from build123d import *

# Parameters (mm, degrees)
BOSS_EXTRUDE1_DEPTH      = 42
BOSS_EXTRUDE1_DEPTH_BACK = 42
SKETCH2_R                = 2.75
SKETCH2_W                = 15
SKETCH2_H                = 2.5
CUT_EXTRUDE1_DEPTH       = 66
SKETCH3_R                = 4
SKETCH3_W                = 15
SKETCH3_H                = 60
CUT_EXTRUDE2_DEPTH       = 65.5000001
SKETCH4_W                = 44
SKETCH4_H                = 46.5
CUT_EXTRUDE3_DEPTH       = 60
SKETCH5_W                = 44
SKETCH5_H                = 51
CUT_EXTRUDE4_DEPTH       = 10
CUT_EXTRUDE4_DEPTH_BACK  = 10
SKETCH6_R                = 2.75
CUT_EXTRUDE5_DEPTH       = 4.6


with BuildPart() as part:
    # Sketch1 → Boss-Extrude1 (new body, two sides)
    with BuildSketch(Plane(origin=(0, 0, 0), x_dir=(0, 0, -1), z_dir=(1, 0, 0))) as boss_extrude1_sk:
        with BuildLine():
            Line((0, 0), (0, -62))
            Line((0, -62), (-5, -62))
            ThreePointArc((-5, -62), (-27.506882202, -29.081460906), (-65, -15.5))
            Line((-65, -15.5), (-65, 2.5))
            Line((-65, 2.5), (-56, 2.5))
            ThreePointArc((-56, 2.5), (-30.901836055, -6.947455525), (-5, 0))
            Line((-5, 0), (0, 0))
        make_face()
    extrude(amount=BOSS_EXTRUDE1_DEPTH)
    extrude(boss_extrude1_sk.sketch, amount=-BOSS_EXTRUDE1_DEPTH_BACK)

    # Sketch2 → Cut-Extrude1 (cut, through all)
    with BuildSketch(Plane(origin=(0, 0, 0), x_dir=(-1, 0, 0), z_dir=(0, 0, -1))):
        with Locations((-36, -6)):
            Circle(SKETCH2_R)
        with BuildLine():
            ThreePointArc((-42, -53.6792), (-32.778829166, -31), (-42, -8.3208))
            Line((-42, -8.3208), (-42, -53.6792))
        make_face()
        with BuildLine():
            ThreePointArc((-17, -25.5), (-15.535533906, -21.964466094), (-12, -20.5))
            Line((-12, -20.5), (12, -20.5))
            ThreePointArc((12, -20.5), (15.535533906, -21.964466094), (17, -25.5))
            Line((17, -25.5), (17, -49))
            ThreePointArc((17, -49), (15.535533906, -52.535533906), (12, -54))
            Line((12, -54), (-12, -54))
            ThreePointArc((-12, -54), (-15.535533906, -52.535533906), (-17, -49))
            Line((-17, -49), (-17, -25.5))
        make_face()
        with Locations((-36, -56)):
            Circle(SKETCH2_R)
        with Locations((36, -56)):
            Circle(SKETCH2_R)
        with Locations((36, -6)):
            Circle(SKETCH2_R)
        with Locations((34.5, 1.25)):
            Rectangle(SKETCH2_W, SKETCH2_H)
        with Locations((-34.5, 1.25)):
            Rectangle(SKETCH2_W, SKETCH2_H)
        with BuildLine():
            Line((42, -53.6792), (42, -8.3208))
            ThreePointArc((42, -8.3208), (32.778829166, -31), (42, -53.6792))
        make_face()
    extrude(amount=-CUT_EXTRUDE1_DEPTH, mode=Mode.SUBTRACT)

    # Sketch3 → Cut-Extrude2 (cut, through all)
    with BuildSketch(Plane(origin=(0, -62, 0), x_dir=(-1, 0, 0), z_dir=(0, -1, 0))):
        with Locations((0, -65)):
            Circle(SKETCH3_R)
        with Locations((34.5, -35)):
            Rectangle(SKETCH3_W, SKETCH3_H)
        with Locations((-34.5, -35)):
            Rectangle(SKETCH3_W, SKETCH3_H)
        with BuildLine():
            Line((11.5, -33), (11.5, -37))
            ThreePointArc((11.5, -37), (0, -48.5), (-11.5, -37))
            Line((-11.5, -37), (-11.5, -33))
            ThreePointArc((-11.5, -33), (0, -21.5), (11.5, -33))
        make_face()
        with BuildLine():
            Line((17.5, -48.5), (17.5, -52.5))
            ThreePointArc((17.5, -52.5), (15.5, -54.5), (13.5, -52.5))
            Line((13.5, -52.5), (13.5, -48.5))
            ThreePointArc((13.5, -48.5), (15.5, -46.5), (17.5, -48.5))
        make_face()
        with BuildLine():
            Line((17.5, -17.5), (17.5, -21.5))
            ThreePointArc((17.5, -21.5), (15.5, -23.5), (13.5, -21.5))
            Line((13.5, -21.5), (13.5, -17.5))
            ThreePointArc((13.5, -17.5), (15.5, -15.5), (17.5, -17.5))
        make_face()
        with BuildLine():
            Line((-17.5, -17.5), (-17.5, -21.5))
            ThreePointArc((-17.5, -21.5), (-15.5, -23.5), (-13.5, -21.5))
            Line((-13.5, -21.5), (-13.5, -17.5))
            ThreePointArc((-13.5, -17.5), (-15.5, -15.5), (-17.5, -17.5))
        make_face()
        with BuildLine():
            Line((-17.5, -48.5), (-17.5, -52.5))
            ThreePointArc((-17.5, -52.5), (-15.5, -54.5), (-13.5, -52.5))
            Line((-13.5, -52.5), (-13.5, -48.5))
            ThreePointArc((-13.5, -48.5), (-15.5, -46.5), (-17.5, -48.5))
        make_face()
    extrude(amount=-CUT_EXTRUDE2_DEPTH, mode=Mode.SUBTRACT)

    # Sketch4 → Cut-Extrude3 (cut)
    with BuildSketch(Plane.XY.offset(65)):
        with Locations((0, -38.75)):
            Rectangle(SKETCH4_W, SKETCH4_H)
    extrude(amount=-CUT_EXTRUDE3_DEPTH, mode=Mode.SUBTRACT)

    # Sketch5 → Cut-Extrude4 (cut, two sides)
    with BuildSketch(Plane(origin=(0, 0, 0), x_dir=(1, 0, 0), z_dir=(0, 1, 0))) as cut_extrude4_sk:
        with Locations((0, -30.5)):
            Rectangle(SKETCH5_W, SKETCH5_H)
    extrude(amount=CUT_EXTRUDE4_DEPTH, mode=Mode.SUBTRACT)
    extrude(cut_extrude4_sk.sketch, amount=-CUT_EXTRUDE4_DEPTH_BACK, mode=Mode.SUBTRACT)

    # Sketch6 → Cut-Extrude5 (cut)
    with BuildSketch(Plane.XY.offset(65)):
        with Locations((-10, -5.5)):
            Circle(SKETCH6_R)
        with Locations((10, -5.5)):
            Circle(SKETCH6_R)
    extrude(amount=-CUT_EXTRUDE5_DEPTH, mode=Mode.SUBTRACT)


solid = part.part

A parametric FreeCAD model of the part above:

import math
import FreeCAD as App
import Part
import Sketcher

V = App.Vector
Q = App.Units.Quantity


def add_polygon(sketch, points):
    """Adds a closed chain of lines whose ends are joined by coincident constraints."""
    first, n = sketch.GeometryCount, len(points)
    for a, b in zip(points, points[1:] + points[:1]):
        sketch.addGeometry(Part.LineSegment(App.Vector(*a, 0), App.Vector(*b, 0)), False)
    for i in range(n):
        sketch.addConstraint(Sketcher.Constraint("Coincident", first + i, 2, first + (i + 1) % n, 1))

doc = App.newDocument("Part")
params = doc.addObject("Spreadsheet::Sheet", "Params")
for row, (alias, value) in enumerate([
    ("sketch1_radius", "65 mm"),
    ("sketch1_width", "62 mm"),
    ("sketch1_width2", "18 mm"),
    ("sketch1_height", "5 mm"),
    ("sketch1_height2", "9 mm"),
    ("pad1_length", "42 mm"),
    ("pad1_length2", "42 mm"),
    ("sketch2_radius", "5 mm"),
    ("sketch2_diameter", "5.5 mm"),
    ("sketch2_radius2", "32.5 mm"),
    ("sketch2_width", "24 mm"),
    ("sketch2_width2", "15 mm"),
    ("sketch3_diameter", "8 mm"),
    ("sketch3_radius", "2 mm"),
    ("sketch3_radius2", "11.5 mm"),
    ("sketch3_width", "15 mm"),
    ("sketch3_height", "60 mm"),
    ("sketch4_width", "44 mm"),
    ("sketch4_height", "46.5 mm"),
    ("pocket3_length", "60 mm"),
    ("sketch5_width", "44 mm"),
    ("sketch5_height", "51 mm"),
    ("pocket4_length", "10 mm"),
    ("pocket4_length2", "10 mm"),
    ("sketch6_diameter", "5.5 mm"),
    ("pocket5_length", "4.6 mm"),
], start=1):
    params.set(f"A{row}", alias)
    params.set(f"B{row}", "=" + value)
    params.setAlias(f"B{row}", alias)

body = doc.addObject("PartDesign::Body", "Body")

# Sketch on YZ plane
sketch1 = body.newObject("Sketcher::SketchObject", "Sketch")
sketch1.AttachmentSupport = (doc.getObject("YZ_Plane"), [""])
sketch1.MapMode = "FlatFace"
sketch1.addGeometry([
    Part.LineSegment(V(-62, 0, 0), V(0, 0, 0)),  # 0
    Part.LineSegment(V(0, 0, 0), V(0, 5, 0)),  # 1
    Part.ArcOfCircle(Part.Circle(V(37, 29, 0), V(0, 0, 1), 44), math.radians(142), math.radians(213)),  # 2
    Part.LineSegment(V(2, 56, 0), V(2, 65, 0)),  # 3
    Part.LineSegment(V(2, 65, 0), V(-16, 65, 0)),  # 4
    Part.ArcOfCircle(Part.Circle(V(-80, 67, 0), V(0, 0, 1), 65), math.radians(-74), math.radians(-2)),  # 5
    Part.LineSegment(V(-62, 5, 0), V(-62, 0, 0)),  # 6
], False)
sketch1.addConstraint([
    Sketcher.Constraint("Coincident", 0, 2, 1, 1),
    Sketcher.Constraint("Coincident", 1, 2, 2, 2),
    Sketcher.Constraint("Coincident", 2, 1, 3, 1),
    Sketcher.Constraint("Coincident", 3, 2, 4, 1),
    Sketcher.Constraint("Coincident", 4, 2, 5, 2),
    Sketcher.Constraint("Coincident", 5, 1, 6, 1),
    Sketcher.Constraint("Coincident", 6, 2, 0, 1),
    Sketcher.Constraint("Horizontal", 0),
    Sketcher.Constraint("Vertical", 1),
    Sketcher.Constraint("Vertical", 3),
    Sketcher.Constraint("Horizontal", 4),
    Sketcher.Constraint("Vertical", 6),
    Sketcher.Constraint("Coincident", 0, 2, -1, 1),
    Sketcher.Constraint("Horizontal", 1, 2, 5, 1),
    Sketcher.Constraint("Radius", 5, Q("65 mm")),
    Sketcher.Constraint("DistanceX", 0, 1, 0, 2, Q("62 mm")),
    Sketcher.Constraint("DistanceX", 4, 2, 4, 1, Q("18 mm")),
    Sketcher.Constraint("DistanceY", 1, 1, 1, 2, Q("5 mm")),
    Sketcher.Constraint("DistanceY", 3, 1, 3, 2, Q("9 mm")),
    Sketcher.Constraint("DistanceY", -1, 1, 2, 1, Q("56 mm")),
    Sketcher.Constraint("DistanceX", -1, 1, 2, 1, Q("2.5 mm")),
    Sketcher.Constraint("Radius", 2, Q("43.81297 mm")),
])
sketch1.setExpression("Constraints[14]", "Params.sketch1_radius")
sketch1.setExpression("Constraints[15]", "Params.sketch1_width")
sketch1.setExpression("Constraints[16]", "Params.sketch1_width2")
sketch1.setExpression("Constraints[17]", "Params.sketch1_height")
sketch1.setExpression("Constraints[18]", "Params.sketch1_height2")
pad1 = body.newObject("PartDesign::Pad", "Pad")
pad1.Profile = sketch1
pad1.Type = "TwoLengths"
pad1.setExpression("Length", "Params.pad1_length")
pad1.setExpression("Length2", "Params.pad1_length2")

# Sketch on XY plane
sketch2 = body.newObject("Sketcher::SketchObject", "Sketch001")
sketch2.AttachmentSupport = (doc.getObject("XY_Plane"), [""])
sketch2.MapMode = "FlatFace"
sketch2.addGeometry(Part.Circle(V(36, -6, 0), V(0, 0, 1), 2.8), False)  # 0
sketch2.addGeometry(Part.ArcOfCircle(Part.Circle(V(65.3, -31, 0), V(0, 0, 1), 32.5), math.radians(136), math.radians(224)), False)  # 1
sketch2.addGeometry(Part.LineSegment(V(42, -8.3, 0), V(42, -53.7, 0)), False)  # 2
sketch2.addGeometry(Part.ArcOfCircle(Part.Circle(V(12, -25.5, 0), V(0, 0, 1), 5), math.radians(0), math.radians(90)), False)  # 3
sketch2.addGeometry(Part.LineSegment(V(17, -25.5, 0), V(17, -49, 0)), False)  # 4
sketch2.addGeometry(Part.ArcOfCircle(Part.Circle(V(12, -49, 0), V(0, 0, 1), 5), math.radians(-90), math.radians(0)), False)  # 5
sketch2.addGeometry(Part.LineSegment(V(12, -54, 0), V(-12, -54, 0)), False)  # 6
sketch2.addGeometry(Part.ArcOfCircle(Part.Circle(V(-12, -49, 0), V(0, 0, 1), 5), math.radians(180), math.radians(270)), False)  # 7
sketch2.addGeometry(Part.LineSegment(V(-17, -49, 0), V(-17, -25.5, 0)), False)  # 8
sketch2.addGeometry(Part.ArcOfCircle(Part.Circle(V(-12, -25.5, 0), V(0, 0, 1), 5), math.radians(90), math.radians(180)), False)  # 9
sketch2.addGeometry(Part.LineSegment(V(-12, -20.5, 0), V(12, -20.5, 0)), False)  # 10
sketch2.addGeometry(Part.Circle(V(36, -56, 0), V(0, 0, 1), 2.8), False)  # 11
sketch2.addGeometry(Part.Circle(V(-36, -56, 0), V(0, 0, 1), 2.8), False)  # 12
sketch2.addGeometry(Part.Circle(V(-36, -6, 0), V(0, 0, 1), 2.8), False)  # 13
add_polygon(sketch2, [(-27, 2.5), (-27, 0), (-42, 0), (-42, 2.5)])  # lines 14-17
add_polygon(sketch2, [(42, 2.5), (42, 0), (27, 0), (27, 2.5)])  # lines 18-21
sketch2.addGeometry(Part.LineSegment(V(-42, -53.7, 0), V(-42, -8.3, 0)), False)  # 22
sketch2.addGeometry(Part.ArcOfCircle(Part.Circle(V(-65.3, -31, 0), V(0, 0, 1), 32.5), math.radians(-44), math.radians(44)), False)  # 23
sketch2.addConstraint([
    Sketcher.Constraint("Coincident", 1, 1, 2, 1),
    Sketcher.Constraint("Coincident", 2, 2, 1, 2),
    Sketcher.Constraint("Tangent", 3, 1, 4, 1),
    Sketcher.Constraint("Tangent", 4, 2, 5, 2),
    Sketcher.Constraint("Tangent", 5, 1, 6, 1),
    Sketcher.Constraint("Tangent", 6, 2, 7, 2),
    Sketcher.Constraint("Tangent", 7, 1, 8, 1),
    Sketcher.Constraint("Tangent", 8, 2, 9, 2),
    Sketcher.Constraint("Tangent", 9, 1, 10, 1),
    Sketcher.Constraint("Tangent", 10, 2, 3, 2),
    Sketcher.Constraint("Coincident", 22, 1, 23, 1),
    Sketcher.Constraint("Coincident", 23, 2, 22, 2),
    Sketcher.Constraint("Vertical", 2),
    Sketcher.Constraint("Vertical", 4),
    Sketcher.Constraint("Horizontal", 6),
    Sketcher.Constraint("Vertical", 8),
    Sketcher.Constraint("Horizontal", 10),
    Sketcher.Constraint("Vertical", 14),
    Sketcher.Constraint("Horizontal", 15),
    Sketcher.Constraint("Vertical", 16),
    Sketcher.Constraint("Horizontal", 17),
    Sketcher.Constraint("Vertical", 18),
    Sketcher.Constraint("Horizontal", 19),
    Sketcher.Constraint("Vertical", 20),
    Sketcher.Constraint("Horizontal", 21),
    Sketcher.Constraint("Vertical", 22),
    Sketcher.Constraint("Equal", 3, 5),
    Sketcher.Constraint("Equal", 5, 7),
    Sketcher.Constraint("Equal", 7, 9),
    Sketcher.Constraint("Equal", 0, 11),
    Sketcher.Constraint("Equal", 11, 12),
    Sketcher.Constraint("Equal", 12, 13),
    Sketcher.Constraint("Equal", 1, 23),
    Sketcher.Constraint("Symmetric", 15, 2, 18, 2, -1, 1),
    Sketcher.Constraint("Symmetric", 11, 3, 12, 3, -2),
    Sketcher.Constraint("Symmetric", 0, 3, 13, 3, -2),
    Sketcher.Constraint("Symmetric", 1, 3, 23, 3, -2),
    Sketcher.Constraint("Symmetric", 14, 2, 19, 2, -2),
    Sketcher.Constraint("Horizontal", 17, 2, 20, 2),
    Sketcher.Constraint("Horizontal", 2, 2, 22, 1),
    Sketcher.Constraint("Vertical", 0, 3, 11, 3),
    Sketcher.Constraint("Vertical", 2, 2, 18, 2),
    Sketcher.Constraint("Radius", 3, Q("5 mm")),
    Sketcher.Constraint("Diameter", 0, Q("5.5 mm")),
    Sketcher.Constraint("Radius", 1, Q("32.5 mm")),
    Sketcher.Constraint("DistanceX", 6, 2, 6, 1, Q("24 mm")),
    Sketcher.Constraint("DistanceX", 15, 2, 15, 1, Q("15 mm")),
    Sketcher.Constraint("DistanceY", 4, 2, 4, 1, Q("23.5 mm")),
    Sketcher.Constraint("DistanceY", 14, 2, 14, 1, Q("2.5 mm")),
    Sketcher.Constraint("DistanceX", -1, 1, 0, 3, Q("36 mm")),
    Sketcher.Constraint("DistanceY", 0, 3, -1, 1, Q("6 mm")),
    Sketcher.Constraint("DistanceY", 1, 3, -1, 1, Q("31 mm")),
    Sketcher.Constraint("DistanceX", -1, 1, 3, 3, Q("12 mm")),
    Sketcher.Constraint("DistanceY", 5, 3, -1, 1, Q("49 mm")),
    Sketcher.Constraint("DistanceY", 11, 3, -1, 1, Q("56 mm")),
    Sketcher.Constraint("DistanceX", -1, 1, 1, 1, Q("42 mm")),
    Sketcher.Constraint("DistanceY", 2, 2, 2, 1, Q("45.3584 mm")),
])
sketch2.setExpression("Constraints[50]", "Params.sketch2_radius")
sketch2.setExpression("Constraints[51]", "Params.sketch2_diameter")
sketch2.setExpression("Constraints[52]", "Params.sketch2_radius2")
sketch2.setExpression("Constraints[53]", "Params.sketch2_width")
sketch2.setExpression("Constraints[54]", "Params.sketch2_width2")
pocket1 = body.newObject("PartDesign::Pocket", "Pocket")
pocket1.Profile = sketch2
pocket1.Type = "ThroughAll"
pocket1.Reversed = True

# Sketch on XZ plane
sketch3 = body.newObject("Sketcher::SketchObject", "Sketch002")
sketch3.AttachmentSupport = (doc.getObject("XZ_Plane"), [""])
sketch3.MapMode = "FlatFace"
sketch3.AttachmentOffset = App.Placement(V(0, 0, 62), App.Rotation())
sketch3.addGeometry(Part.Circle(V(0, 65, 0), V(0, 0, 1), 4), False)  # 0
add_polygon(sketch3, [(-27, 5), (-27, 65), (-42, 65), (-42, 5)])  # lines 1-4
add_polygon(sketch3, [(42, 5), (42, 65), (27, 65), (27, 5)])  # lines 5-8
sketch3.addGeometry(Part.LineSegment(V(-11.5, 37, 0), V(-11.5, 33, 0)), False)  # 9
sketch3.addGeometry(Part.ArcOfCircle(Part.Circle(V(0, 33, 0), V(0, 0, 1), 11.5), math.radians(180), math.radians(360)), False)  # 10
sketch3.addGeometry(Part.LineSegment(V(11.5, 33, 0), V(11.5, 37, 0)), False)  # 11
sketch3.addGeometry(Part.ArcOfCircle(Part.Circle(V(0, 37, 0), V(0, 0, 1), 11.5), math.radians(0), math.radians(180)), False)  # 12
sketch3.addGeometry(Part.LineSegment(V(-17.5, 52.5, 0), V(-17.5, 48.5, 0)), False)  # 13
sketch3.addGeometry(Part.ArcOfCircle(Part.Circle(V(-15.5, 48.5, 0), V(0, 0, 1), 2), math.radians(180), math.radians(360)), False)  # 14
sketch3.addGeometry(Part.LineSegment(V(-13.5, 48.5, 0), V(-13.5, 52.5, 0)), False)  # 15
sketch3.addGeometry(Part.ArcOfCircle(Part.Circle(V(-15.5, 52.5, 0), V(0, 0, 1), 2), math.radians(0), math.radians(180)), False)  # 16
sketch3.addGeometry(Part.LineSegment(V(-17.5, 21.5, 0), V(-17.5, 17.5, 0)), False)  # 17
sketch3.addGeometry(Part.ArcOfCircle(Part.Circle(V(-15.5, 17.5, 0), V(0, 0, 1), 2), math.radians(180), math.radians(360)), False)  # 18
sketch3.addGeometry(Part.LineSegment(V(-13.5, 17.5, 0), V(-13.5, 21.5, 0)), False)  # 19
sketch3.addGeometry(Part.ArcOfCircle(Part.Circle(V(-15.5, 21.5, 0), V(0, 0, 1), 2), math.radians(0), math.radians(180)), False)  # 20
sketch3.addGeometry(Part.LineSegment(V(17.5, 17.5, 0), V(17.5, 21.5, 0)), False)  # 21
sketch3.addGeometry(Part.ArcOfCircle(Part.Circle(V(15.5, 21.5, 0), V(0, 0, 1), 2), math.radians(0), math.radians(180)), False)  # 22
sketch3.addGeometry(Part.LineSegment(V(13.5, 21.5, 0), V(13.5, 17.5, 0)), False)  # 23
sketch3.addGeometry(Part.ArcOfCircle(Part.Circle(V(15.5, 17.5, 0), V(0, 0, 1), 2), math.radians(180), math.radians(360)), False)  # 24
sketch3.addGeometry(Part.LineSegment(V(17.5, 48.5, 0), V(17.5, 52.5, 0)), False)  # 25
sketch3.addGeometry(Part.ArcOfCircle(Part.Circle(V(15.5, 52.5, 0), V(0, 0, 1), 2), math.radians(0), math.radians(180)), False)  # 26
sketch3.addGeometry(Part.LineSegment(V(13.5, 52.5, 0), V(13.5, 48.5, 0)), False)  # 27
sketch3.addGeometry(Part.ArcOfCircle(Part.Circle(V(15.5, 48.5, 0), V(0, 0, 1), 2), math.radians(180), math.radians(360)), False)  # 28
sketch3.addConstraint([
    Sketcher.Constraint("Tangent", 9, 2, 10, 1),
    Sketcher.Constraint("Tangent", 10, 2, 11, 1),
    Sketcher.Constraint("Tangent", 11, 2, 12, 1),
    Sketcher.Constraint("Tangent", 12, 2, 9, 1),
    Sketcher.Constraint("Tangent", 13, 2, 14, 1),
    Sketcher.Constraint("Tangent", 14, 2, 15, 1),
    Sketcher.Constraint("Tangent", 15, 2, 16, 1),
    Sketcher.Constraint("Tangent", 16, 2, 13, 1),
    Sketcher.Constraint("Tangent", 17, 2, 18, 1),
    Sketcher.Constraint("Tangent", 18, 2, 19, 1),
    Sketcher.Constraint("Tangent", 19, 2, 20, 1),
    Sketcher.Constraint("Tangent", 20, 2, 17, 1),
    Sketcher.Constraint("Tangent", 21, 2, 22, 1),
    Sketcher.Constraint("Tangent", 22, 2, 23, 1),
    Sketcher.Constraint("Tangent", 23, 2, 24, 1),
    Sketcher.Constraint("Tangent", 24, 2, 21, 1),
    Sketcher.Constraint("Tangent", 25, 2, 26, 1),
    Sketcher.Constraint("Tangent", 26, 2, 27, 1),
    Sketcher.Constraint("Tangent", 27, 2, 28, 1),
    Sketcher.Constraint("Tangent", 28, 2, 25, 1),
    Sketcher.Constraint("Vertical", 1),
    Sketcher.Constraint("Horizontal", 2),
    Sketcher.Constraint("Vertical", 3),
    Sketcher.Constraint("Horizontal", 4),
    Sketcher.Constraint("Vertical", 5),
    Sketcher.Constraint("Horizontal", 6),
    Sketcher.Constraint("Vertical", 7),
    Sketcher.Constraint("Horizontal", 8),
    Sketcher.Constraint("Vertical", 9),
    Sketcher.Constraint("Vertical", 11),
    Sketcher.Constraint("Vertical", 13),
    Sketcher.Constraint("Vertical", 15),
    Sketcher.Constraint("Vertical", 17),
    Sketcher.Constraint("Vertical", 19),
    Sketcher.Constraint("Vertical", 21),
    Sketcher.Constraint("Vertical", 23),
    Sketcher.Constraint("Vertical", 25),
    Sketcher.Constraint("Vertical", 27),
    Sketcher.Constraint("Equal", 16, 18),
    Sketcher.Constraint("Equal", 20, 22),
    Sketcher.Constraint("Equal", 24, 26),
    Sketcher.Constraint("Symmetric", 20, 3, 22, 3, -2),
    Sketcher.Constraint("Symmetric", 16, 3, 26, 3, -2),
    Sketcher.Constraint("Symmetric", 2, 2, 5, 2, -2),
    Sketcher.Constraint("Symmetric", 4, 2, 7, 2, -2),
    Sketcher.Constraint("PointOnObject", 0, 3, -2),
    Sketcher.Constraint("PointOnObject", 10, 3, -2),
    Sketcher.Constraint("Horizontal", 18, 3, 24, 3),
    Sketcher.Constraint("Horizontal", 14, 3, 28, 3),
    Sketcher.Constraint("Horizontal", 0, 3, 1, 2),
    Sketcher.Constraint("Vertical", 16, 3, 18, 3),
    Sketcher.Constraint("Equal", 11, 13),
    Sketcher.Constraint("Equal", 15, 17),
    Sketcher.Constraint("Diameter", 0, Q("8 mm")),
    Sketcher.Constraint("Radius", 14, Q("2 mm")),
    Sketcher.Constraint("Radius", 10, Q("11.5 mm")),
    Sketcher.Constraint("DistanceX", 2, 2, 2, 1, Q("15 mm")),
    Sketcher.Constraint("DistanceY", 1, 1, 1, 2, Q("60 mm")),
    Sketcher.Constraint("DistanceY", 9, 2, 9, 1, Q("4 mm")),
    Sketcher.Constraint("DistanceY", -1, 1, 0, 3, Q("65 mm")),
    Sketcher.Constraint("DistanceY", -1, 1, 10, 3, Q("33 mm")),
    Sketcher.Constraint("DistanceX", 1, 2, -1, 1, Q("27 mm")),
    Sketcher.Constraint("DistanceY", 18, 3, 14, 3, Q("31 mm")),
    Sketcher.Constraint("DistanceX", 20, 3, 22, 3, Q("31 mm")),
    Sketcher.Constraint("DistanceY", -1, 1, 14, 3, Q("48.5 mm")),
])
sketch3.setExpression("Constraints[61]", "Params.sketch3_diameter")
sketch3.setExpression("Constraints[62]", "Params.sketch3_radius")
sketch3.setExpression("Constraints[63]", "Params.sketch3_radius2")
sketch3.setExpression("Constraints[64]", "Params.sketch3_width")
sketch3.setExpression("Constraints[65]", "Params.sketch3_height")
pocket2 = body.newObject("PartDesign::Pocket", "Pocket001")
pocket2.Profile = sketch3
pocket2.Type = "ThroughAll"

# Sketch on XY plane
sketch4 = body.newObject("Sketcher::SketchObject", "Sketch003")
sketch4.AttachmentSupport = (doc.getObject("XY_Plane"), [""])
sketch4.MapMode = "FlatFace"
sketch4.AttachmentOffset = App.Placement(V(0, 0, 65), App.Rotation())
add_polygon(sketch4, [(-22, -16), (-22, -62), (22, -62), (22, -16)])  # lines 0-3
sketch4.addConstraint([
    Sketcher.Constraint("Vertical", 0),
    Sketcher.Constraint("Horizontal", 1),
    Sketcher.Constraint("Vertical", 2),
    Sketcher.Constraint("Horizontal", 3),
    Sketcher.Constraint("DistanceX", 1, 1, 1, 2, Q("44 mm")),
    Sketcher.Constraint("DistanceY", 0, 2, 0, 1, Q("46.5 mm")),
    Sketcher.Constraint("DistanceX", 0, 2, -1, 1, Q("22 mm")),
    Sketcher.Constraint("DistanceY", 0, 2, -1, 1, Q("62 mm")),
])
sketch4.setExpression("Constraints[8]", "Params.sketch4_width")
sketch4.setExpression("Constraints[9]", "Params.sketch4_height")
pocket3 = body.newObject("PartDesign::Pocket", "Pocket002")
pocket3.Profile = sketch4
pocket3.setExpression("Length", "Params.pocket3_length")

# Sketch on XZ plane
sketch5 = body.newObject("Sketcher::SketchObject", "Sketch004")
sketch5.AttachmentSupport = (doc.getObject("XZ_Plane"), [""])
sketch5.MapMode = "FlatFace"
add_polygon(sketch5, [(-22, 5), (-22, 56), (22, 56), (22, 5)])  # lines 0-3
sketch5.addConstraint([
    Sketcher.Constraint("Vertical", 0),
    Sketcher.Constraint("Horizontal", 1),
    Sketcher.Constraint("Vertical", 2),
    Sketcher.Constraint("Horizontal", 3),
    Sketcher.Constraint("DistanceX", 1, 1, 1, 2, Q("44 mm")),
    Sketcher.Constraint("DistanceY", 0, 1, 0, 2, Q("51 mm")),
    Sketcher.Constraint("DistanceX", 0, 2, -1, 1, Q("22 mm")),
    Sketcher.Constraint("DistanceY", -1, 1, 0, 2, Q("56 mm")),
])
sketch5.setExpression("Constraints[8]", "Params.sketch5_width")
sketch5.setExpression("Constraints[9]", "Params.sketch5_height")
pocket4 = body.newObject("PartDesign::Pocket", "Pocket003")
pocket4.Profile = sketch5
pocket4.Type = "TwoLengths"
pocket4.setExpression("Length", "Params.pocket4_length")
pocket4.setExpression("Length2", "Params.pocket4_length2")

# Sketch on XY plane
sketch6 = body.newObject("Sketcher::SketchObject", "Sketch005")
sketch6.AttachmentSupport = (doc.getObject("XY_Plane"), [""])
sketch6.MapMode = "FlatFace"
sketch6.AttachmentOffset = App.Placement(V(0, 0, 65), App.Rotation())
sketch6.addGeometry([
    Part.Circle(V(-10, -5.5, 0), V(0, 0, 1), 2.8),
    Part.Circle(V(10, -5.5, 0), V(0, 0, 1), 2.8),
], False)
sketch6.addConstraint([
    Sketcher.Constraint("Equal", 0, 1),
    Sketcher.Constraint("Symmetric", 0, 3, 1, 3, -2),
    Sketcher.Constraint("Diameter", 0, Q("5.5 mm")),
    Sketcher.Constraint("DistanceX", 0, 3, -1, 1, Q("10 mm")),
    Sketcher.Constraint("DistanceY", 0, 3, -1, 1, Q("5.5 mm")),
])
sketch6.setExpression("Constraints[2]", "Params.sketch6_diameter")
pocket5 = body.newObject("PartDesign::Pocket", "Pocket004")
pocket5.Profile = sketch6
pocket5.setExpression("Length", "Params.pocket5_length")

doc.recompute()
